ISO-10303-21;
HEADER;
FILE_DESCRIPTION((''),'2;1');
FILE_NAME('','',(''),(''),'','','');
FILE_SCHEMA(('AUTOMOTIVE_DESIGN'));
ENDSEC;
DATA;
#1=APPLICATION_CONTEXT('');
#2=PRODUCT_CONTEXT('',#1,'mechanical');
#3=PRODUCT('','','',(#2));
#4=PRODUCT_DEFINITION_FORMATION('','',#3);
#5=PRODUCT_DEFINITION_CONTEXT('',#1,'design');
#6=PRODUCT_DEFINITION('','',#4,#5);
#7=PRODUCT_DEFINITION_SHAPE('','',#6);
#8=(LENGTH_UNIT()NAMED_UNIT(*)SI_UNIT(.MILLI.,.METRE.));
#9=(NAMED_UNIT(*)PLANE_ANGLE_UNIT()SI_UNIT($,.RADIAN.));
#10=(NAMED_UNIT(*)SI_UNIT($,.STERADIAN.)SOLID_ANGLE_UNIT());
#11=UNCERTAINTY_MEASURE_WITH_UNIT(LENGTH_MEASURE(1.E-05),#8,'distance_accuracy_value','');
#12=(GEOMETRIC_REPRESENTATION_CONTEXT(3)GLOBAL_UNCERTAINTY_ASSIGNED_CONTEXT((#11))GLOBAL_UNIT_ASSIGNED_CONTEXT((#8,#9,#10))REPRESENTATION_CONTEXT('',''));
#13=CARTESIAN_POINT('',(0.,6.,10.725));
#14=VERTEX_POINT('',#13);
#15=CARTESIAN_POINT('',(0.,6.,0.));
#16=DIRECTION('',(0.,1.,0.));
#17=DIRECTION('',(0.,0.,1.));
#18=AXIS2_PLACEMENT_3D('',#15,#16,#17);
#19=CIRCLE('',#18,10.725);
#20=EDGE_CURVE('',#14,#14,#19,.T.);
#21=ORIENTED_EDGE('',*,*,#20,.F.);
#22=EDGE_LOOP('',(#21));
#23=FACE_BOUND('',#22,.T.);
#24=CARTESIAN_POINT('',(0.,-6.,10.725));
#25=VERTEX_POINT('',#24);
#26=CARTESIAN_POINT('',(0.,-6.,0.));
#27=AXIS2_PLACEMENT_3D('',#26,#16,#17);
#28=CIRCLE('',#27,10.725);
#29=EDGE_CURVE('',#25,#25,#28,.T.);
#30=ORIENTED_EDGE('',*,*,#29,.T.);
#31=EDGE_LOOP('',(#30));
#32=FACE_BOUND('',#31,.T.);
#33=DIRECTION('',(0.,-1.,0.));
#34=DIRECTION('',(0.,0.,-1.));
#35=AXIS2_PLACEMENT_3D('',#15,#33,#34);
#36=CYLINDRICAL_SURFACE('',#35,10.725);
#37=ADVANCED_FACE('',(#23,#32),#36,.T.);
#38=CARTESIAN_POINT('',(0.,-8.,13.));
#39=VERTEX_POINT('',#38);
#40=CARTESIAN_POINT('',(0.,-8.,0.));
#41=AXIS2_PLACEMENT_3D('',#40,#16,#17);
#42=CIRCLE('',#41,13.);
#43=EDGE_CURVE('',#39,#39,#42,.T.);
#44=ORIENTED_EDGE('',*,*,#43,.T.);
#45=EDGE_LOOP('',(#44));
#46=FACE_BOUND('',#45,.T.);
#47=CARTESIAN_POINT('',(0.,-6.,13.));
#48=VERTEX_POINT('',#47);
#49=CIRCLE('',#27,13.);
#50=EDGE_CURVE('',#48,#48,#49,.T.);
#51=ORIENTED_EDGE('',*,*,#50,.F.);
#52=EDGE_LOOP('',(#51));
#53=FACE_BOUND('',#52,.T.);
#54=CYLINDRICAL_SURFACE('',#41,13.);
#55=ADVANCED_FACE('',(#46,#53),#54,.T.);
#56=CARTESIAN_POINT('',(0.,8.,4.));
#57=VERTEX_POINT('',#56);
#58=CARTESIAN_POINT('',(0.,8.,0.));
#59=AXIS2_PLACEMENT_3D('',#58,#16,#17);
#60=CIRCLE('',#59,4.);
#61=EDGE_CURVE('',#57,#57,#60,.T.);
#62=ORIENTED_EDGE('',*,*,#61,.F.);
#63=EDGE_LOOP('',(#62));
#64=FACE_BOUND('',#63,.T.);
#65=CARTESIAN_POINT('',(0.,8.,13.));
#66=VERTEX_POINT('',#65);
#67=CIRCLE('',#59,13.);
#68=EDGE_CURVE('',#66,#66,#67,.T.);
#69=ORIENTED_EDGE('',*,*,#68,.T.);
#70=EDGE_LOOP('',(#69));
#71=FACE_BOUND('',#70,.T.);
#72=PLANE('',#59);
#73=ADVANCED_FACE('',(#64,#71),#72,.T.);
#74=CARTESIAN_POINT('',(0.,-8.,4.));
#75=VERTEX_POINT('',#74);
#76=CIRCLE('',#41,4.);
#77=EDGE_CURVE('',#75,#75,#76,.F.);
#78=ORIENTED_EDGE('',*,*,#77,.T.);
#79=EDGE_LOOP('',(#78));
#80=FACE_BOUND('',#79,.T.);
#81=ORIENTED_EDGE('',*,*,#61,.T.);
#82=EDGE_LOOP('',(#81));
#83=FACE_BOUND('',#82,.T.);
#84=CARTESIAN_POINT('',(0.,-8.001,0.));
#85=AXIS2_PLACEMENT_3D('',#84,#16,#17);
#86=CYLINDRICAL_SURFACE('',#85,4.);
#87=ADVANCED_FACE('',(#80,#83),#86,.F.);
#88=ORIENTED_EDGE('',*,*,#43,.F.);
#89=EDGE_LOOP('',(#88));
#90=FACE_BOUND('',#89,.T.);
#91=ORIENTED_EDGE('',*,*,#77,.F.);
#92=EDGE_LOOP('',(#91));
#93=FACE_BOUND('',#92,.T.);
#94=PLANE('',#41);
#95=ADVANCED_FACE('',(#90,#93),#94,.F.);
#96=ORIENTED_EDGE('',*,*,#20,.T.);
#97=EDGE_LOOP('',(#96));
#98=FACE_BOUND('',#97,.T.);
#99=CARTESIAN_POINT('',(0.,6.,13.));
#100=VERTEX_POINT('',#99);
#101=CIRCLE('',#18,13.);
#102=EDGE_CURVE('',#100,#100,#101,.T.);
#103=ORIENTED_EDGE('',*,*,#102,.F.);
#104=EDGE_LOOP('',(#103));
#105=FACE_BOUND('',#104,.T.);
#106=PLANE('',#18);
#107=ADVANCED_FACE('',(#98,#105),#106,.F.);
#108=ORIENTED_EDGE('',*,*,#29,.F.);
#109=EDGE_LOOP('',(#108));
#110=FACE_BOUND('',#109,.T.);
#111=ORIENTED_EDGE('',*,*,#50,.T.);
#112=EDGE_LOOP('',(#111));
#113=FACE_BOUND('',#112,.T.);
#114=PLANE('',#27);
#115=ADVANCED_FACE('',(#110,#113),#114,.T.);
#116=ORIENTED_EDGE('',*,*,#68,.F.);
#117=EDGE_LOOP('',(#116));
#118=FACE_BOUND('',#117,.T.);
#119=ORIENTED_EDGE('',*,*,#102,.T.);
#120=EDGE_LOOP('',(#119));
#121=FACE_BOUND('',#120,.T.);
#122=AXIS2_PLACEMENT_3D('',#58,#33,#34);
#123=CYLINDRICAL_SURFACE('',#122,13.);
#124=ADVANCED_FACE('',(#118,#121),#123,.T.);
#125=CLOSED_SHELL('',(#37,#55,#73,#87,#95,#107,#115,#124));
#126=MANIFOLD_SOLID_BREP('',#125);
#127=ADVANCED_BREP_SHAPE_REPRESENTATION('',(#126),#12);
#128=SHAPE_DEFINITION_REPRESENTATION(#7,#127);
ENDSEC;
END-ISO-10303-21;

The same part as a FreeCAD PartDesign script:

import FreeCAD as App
import Part
import Sketcher
from FreeCAD import Vector
Q = App.Units.Quantity

doc = App.newDocument("Part")
params = doc.addObject("Spreadsheet::Sheet", "Params")
for row, (alias, value) in enumerate([
    ("sketch1_diameter", "21.45 mm"),
    ("pad1_length", "12 mm"),
    ("sketch2_diameter", "26 mm"),
    ("pad2_length", "2 mm"),
    ("sketch3_diameter", "26 mm"),
    ("pad3_length", "2 mm"),
    ("sketch4_diameter", "8 mm"),
], start=1):
    params.set(f"A{row}", alias)
    params.set(f"B{row}", "=" + value)
    params.setAlias(f"B{row}", alias)

body = doc.addObject("PartDesign::Body", "Body")

# Sketch on XZ plane
sketch1 = doc.addObject("Sketcher::SketchObject", "Sketch")
body.addObject(sketch1)
sketch1.AttachmentSupport = (doc.XZ_Plane, [""])
sketch1.MapMode = "FlatFace"
sketch1.addGeometry(Part.Circle(Vector(0, 0, 0), Vector(0, 0, 1), 11), False)
sketch1.addConstraint([
    Sketcher.Constraint("Coincident", 0, 3, -1, 1),
    Sketcher.Constraint("Diameter", 0, Q("21.45 mm")),
])
sketch1.setExpression("Constraints[1]", "Params.sketch1_diameter")
pad1 = doc.addObject("PartDesign::Pad", "Pad")
body.addObject(pad1)
pad1.Profile = sketch1
pad1.setExpression("Length", "Params.pad1_length")
pad1.Midplane = True

# Sketch on XZ plane
sketch2 = doc.addObject("Sketcher::SketchObject", "Sketch001")
body.addObject(sketch2)
sketch2.AttachmentSupport = (doc.XZ_Plane, [""])
sketch2.MapMode = "FlatFace"
sketch2.AttachmentOffset = App.Placement(Vector(0, 0, -6), App.Rotation())
sketch2.addGeometry(Part.Circle(Vector(0, 0, 0), Vector(0, 0, 1), 13), False)
sketch2.addConstraint([
    Sketcher.Constraint("Coincident", 0, 3, -1, 1),
    Sketcher.Constraint("Diameter", 0, Q("26 mm")),
])
sketch2.setExpression("Constraints[1]", "Params.sketch2_diameter")
pad2 = doc.addObject("PartDesign::Pad", "Pad001")
body.addObject(pad2)
pad2.Profile = sketch2
pad2.setExpression("Length", "Params.pad2_length")
pad2.Reversed = True

# Sketch on XZ plane
sketch3 = doc.addObject("Sketcher::SketchObject", "Sketch002")
body.addObject(sketch3)
sketch3.AttachmentSupport = (doc.XZ_Plane, [""])
sketch3.MapMode = "FlatFace"
sketch3.AttachmentOffset = App.Placement(Vector(0, 0, 8), App.Rotation())
sketch3.addGeometry(Part.Circle(Vector(0, 0, 0), Vector(0, 0, 1), 13), False)
sketch3.addConstraint([
    Sketcher.Constraint("Coincident", 0, 3, -1, 1),
    Sketcher.Constraint("Diameter", 0, Q("26 mm")),
])
sketch3.setExpression("Constraints[1]", "Params.sketch3_diameter")
pad3 = doc.addObject("PartDesign::Pad", "Pad002")
body.addObject(pad3)
pad3.Profile = sketch3
pad3.setExpression("Length", "Params.pad3_length")
pad3.Reversed = True

# Sketch on XZ plane
sketch4 = doc.addObject("Sketcher::SketchObject", "Sketch003")
body.addObject(sketch4)
sketch4.AttachmentSupport = (doc.XZ_Plane, [""])
sketch4.MapMode = "FlatFace"
sketch4.AttachmentOffset = App.Placement(Vector(0, 0, -8), App.Rotation())
sketch4.addGeometry(Part.Circle(Vector(0, 0, 0), Vector(0, 0, 1), 4), False)
sketch4.addConstraint([
    Sketcher.Constraint("Coincident", 0, 3, -1, 1),
    Sketcher.Constraint("Diameter", 0, Q("8 mm")),
])
sketch4.setExpression("Constraints[1]", "Params.sketch4_diameter")
pocket1 = doc.addObject("PartDesign::Pocket", "Pocket")
body.addObject(pocket1)
pocket1.Profile = sketch4
pocket1.Type = "UpToFirst"
pocket1.Reversed = True

doc.recompute()
